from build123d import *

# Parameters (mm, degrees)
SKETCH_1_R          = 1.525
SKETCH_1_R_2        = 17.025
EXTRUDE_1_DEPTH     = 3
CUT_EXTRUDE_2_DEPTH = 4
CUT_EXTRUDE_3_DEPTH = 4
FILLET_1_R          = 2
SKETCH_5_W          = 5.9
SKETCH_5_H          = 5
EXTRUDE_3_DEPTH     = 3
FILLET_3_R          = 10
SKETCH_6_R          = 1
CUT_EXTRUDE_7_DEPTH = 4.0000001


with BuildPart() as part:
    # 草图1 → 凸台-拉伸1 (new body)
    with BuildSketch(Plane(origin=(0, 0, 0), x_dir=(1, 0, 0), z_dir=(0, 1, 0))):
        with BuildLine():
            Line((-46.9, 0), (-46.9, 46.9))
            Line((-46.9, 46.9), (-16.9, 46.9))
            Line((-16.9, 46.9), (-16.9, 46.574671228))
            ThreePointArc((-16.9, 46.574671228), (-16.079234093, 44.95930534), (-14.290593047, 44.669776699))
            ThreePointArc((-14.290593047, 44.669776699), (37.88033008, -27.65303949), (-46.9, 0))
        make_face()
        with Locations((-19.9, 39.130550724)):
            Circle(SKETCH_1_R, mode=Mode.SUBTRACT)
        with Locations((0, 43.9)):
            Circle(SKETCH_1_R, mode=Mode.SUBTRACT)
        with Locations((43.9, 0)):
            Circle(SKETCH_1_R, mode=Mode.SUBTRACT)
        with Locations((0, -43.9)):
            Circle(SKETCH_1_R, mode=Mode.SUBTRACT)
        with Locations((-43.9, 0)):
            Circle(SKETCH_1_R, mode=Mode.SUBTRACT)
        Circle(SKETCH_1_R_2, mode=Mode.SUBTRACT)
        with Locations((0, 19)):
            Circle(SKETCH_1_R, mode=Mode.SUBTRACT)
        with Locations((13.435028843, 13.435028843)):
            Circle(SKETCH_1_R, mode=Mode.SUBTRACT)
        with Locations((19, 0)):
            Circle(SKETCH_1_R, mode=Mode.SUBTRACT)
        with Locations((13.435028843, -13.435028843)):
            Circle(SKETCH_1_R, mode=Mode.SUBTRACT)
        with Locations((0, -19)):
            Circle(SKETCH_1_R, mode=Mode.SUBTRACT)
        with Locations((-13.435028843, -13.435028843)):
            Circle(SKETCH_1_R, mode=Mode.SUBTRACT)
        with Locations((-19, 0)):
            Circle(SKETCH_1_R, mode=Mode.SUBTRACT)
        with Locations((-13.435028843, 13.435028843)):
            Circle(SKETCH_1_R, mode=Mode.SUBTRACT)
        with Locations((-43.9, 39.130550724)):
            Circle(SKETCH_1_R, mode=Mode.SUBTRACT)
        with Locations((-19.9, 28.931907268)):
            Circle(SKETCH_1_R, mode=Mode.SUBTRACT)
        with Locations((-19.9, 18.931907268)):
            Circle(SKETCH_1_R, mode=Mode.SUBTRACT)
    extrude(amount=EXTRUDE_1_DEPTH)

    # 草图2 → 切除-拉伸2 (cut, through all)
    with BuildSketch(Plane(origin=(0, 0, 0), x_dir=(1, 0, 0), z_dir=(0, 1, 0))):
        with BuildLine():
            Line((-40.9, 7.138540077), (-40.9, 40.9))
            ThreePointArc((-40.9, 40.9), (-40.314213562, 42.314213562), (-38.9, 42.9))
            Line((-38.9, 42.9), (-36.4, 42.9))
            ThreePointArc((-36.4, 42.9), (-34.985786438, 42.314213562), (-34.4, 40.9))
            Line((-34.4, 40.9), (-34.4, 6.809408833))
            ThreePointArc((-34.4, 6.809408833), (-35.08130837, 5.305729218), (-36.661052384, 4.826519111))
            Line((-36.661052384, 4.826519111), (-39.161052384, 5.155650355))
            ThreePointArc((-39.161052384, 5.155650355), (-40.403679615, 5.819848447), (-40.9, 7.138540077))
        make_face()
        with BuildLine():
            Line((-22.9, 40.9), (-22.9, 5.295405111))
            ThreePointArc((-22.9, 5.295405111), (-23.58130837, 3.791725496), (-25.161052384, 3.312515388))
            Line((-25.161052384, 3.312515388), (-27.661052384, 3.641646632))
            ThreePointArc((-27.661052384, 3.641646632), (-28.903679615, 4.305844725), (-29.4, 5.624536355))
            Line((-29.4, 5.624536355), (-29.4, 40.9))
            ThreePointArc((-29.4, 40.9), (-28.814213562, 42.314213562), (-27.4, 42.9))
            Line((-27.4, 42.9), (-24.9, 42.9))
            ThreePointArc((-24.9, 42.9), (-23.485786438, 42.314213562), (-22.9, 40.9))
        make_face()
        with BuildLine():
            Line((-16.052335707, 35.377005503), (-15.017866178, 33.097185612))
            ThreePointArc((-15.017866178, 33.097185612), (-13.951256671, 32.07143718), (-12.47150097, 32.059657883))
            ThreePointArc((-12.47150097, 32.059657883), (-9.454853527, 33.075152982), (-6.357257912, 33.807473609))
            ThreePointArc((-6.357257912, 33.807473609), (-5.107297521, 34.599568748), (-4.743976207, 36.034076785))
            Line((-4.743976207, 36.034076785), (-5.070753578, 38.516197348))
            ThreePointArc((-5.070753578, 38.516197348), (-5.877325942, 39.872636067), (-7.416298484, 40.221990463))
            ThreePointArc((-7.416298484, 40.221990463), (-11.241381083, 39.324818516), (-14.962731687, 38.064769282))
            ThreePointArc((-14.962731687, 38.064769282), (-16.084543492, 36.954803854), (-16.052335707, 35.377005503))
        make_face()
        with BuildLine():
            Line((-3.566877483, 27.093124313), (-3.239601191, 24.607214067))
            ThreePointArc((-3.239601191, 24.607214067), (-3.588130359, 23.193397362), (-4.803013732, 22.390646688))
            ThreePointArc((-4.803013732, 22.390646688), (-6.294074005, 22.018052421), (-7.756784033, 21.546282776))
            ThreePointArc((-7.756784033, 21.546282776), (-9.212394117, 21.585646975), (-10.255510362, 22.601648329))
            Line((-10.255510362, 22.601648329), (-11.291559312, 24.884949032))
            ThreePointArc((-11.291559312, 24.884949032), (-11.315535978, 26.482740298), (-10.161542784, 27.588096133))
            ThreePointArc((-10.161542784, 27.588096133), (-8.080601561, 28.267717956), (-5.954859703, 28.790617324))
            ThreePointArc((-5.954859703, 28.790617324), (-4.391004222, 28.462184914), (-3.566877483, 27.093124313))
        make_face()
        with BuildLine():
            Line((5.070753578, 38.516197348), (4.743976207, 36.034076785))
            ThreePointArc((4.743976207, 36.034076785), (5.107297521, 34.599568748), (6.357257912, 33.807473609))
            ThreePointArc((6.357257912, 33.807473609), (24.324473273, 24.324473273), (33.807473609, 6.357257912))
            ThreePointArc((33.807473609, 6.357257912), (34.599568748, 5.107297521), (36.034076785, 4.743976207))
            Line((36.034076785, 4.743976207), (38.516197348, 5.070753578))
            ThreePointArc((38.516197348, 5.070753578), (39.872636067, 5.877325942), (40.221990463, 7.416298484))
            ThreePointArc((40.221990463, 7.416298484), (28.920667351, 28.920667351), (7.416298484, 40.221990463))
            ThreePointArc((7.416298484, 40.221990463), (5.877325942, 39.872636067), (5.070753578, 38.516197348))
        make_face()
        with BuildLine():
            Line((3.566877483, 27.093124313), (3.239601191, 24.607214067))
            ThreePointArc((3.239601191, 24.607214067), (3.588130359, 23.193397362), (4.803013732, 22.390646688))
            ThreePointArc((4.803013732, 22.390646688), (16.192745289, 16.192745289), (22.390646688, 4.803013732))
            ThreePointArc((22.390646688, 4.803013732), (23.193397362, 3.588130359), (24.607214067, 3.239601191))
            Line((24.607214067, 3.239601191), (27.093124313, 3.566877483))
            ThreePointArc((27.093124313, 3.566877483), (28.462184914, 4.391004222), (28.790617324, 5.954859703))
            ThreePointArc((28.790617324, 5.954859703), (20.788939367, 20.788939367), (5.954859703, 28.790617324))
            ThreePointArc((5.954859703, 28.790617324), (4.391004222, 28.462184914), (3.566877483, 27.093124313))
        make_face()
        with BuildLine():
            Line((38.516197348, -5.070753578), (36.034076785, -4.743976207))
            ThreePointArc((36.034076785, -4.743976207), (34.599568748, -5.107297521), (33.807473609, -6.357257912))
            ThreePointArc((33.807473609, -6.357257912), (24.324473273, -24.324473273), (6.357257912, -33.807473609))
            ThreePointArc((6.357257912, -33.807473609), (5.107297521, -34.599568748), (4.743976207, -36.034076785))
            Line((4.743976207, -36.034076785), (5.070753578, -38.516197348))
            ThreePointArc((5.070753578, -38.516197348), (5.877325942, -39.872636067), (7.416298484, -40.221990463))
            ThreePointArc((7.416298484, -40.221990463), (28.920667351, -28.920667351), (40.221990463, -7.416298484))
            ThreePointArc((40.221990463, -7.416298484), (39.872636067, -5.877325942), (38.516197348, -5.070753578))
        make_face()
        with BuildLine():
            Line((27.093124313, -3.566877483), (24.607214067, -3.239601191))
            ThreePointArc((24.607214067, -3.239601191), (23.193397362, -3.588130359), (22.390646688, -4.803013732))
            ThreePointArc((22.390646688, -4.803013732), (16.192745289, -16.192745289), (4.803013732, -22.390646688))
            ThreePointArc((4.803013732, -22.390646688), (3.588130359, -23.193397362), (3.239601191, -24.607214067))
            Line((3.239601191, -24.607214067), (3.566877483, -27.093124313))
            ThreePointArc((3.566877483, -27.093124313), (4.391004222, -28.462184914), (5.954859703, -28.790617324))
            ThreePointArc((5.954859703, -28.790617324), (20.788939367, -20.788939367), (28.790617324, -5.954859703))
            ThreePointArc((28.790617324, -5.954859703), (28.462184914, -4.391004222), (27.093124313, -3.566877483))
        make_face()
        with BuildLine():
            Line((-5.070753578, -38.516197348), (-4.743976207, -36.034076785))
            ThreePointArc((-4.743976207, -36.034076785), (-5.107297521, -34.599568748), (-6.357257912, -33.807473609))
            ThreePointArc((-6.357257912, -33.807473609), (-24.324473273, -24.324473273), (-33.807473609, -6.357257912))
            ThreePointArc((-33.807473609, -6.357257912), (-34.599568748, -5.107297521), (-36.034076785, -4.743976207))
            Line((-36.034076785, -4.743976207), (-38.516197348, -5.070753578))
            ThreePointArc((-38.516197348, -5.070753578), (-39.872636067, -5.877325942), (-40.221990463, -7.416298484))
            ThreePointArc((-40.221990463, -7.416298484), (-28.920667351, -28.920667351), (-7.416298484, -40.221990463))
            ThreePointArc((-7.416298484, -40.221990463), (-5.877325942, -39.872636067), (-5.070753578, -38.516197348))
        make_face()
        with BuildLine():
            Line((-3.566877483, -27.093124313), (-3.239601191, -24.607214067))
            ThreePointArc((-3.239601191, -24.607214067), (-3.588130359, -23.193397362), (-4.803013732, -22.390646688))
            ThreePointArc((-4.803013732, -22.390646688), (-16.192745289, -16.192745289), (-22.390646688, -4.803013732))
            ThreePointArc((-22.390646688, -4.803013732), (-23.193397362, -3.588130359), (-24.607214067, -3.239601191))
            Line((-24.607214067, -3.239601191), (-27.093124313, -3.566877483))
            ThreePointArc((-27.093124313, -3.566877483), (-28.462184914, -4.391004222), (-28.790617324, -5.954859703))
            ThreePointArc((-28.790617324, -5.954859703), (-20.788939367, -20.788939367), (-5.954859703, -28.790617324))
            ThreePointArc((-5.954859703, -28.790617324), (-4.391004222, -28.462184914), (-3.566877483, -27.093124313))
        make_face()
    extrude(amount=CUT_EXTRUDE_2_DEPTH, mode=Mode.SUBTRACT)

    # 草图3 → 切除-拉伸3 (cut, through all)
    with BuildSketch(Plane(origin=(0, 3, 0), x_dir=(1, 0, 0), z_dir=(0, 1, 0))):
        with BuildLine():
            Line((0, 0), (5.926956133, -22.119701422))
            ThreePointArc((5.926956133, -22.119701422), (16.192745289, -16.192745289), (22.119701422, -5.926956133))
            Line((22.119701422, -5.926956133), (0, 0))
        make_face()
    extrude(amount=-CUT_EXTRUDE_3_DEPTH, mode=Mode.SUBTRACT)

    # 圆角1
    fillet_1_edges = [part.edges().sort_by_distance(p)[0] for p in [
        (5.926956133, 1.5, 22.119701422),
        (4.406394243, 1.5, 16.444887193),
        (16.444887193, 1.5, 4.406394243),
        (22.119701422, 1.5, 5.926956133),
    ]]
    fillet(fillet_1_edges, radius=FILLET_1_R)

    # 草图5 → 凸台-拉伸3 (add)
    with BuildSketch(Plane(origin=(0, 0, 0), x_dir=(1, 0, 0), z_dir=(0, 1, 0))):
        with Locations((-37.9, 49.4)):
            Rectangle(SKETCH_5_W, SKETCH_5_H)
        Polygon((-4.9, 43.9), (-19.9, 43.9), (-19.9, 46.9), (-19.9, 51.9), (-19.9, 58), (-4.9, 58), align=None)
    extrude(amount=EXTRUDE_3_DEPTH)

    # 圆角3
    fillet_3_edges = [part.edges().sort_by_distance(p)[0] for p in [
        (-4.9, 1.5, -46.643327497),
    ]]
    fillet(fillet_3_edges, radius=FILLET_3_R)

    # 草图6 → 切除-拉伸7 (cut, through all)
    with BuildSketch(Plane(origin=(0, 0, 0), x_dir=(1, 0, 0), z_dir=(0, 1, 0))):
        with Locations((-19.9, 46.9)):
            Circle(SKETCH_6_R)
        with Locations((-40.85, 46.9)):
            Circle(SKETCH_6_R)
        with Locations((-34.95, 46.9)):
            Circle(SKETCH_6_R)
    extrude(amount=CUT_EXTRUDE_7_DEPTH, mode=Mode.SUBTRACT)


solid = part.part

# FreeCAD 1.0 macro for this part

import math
import FreeCAD as App
import Part
import Sketcher
Q = App.Units.Quantity


def edges_at(feature, points):
    """Names of the edges that pass closest to the given points."""
    edges = feature.Shape.Edges
    near = lambda p: min(range(len(edges)), key=lambda i: edges[i].distToShape(Part.Vertex(*p))[0])
    return sorted({f"Edge{near(p) + 1}" for p in points})


def add_polygon(sketch, points):
    """Adds a closed chain of lines whose ends are joined by coincident constraints."""
    first, n = sketch.GeometryCount, len(points)
    for a, b in zip(points, points[1:] + points[:1]):
        sketch.addGeometry(Part.LineSegment(App.Vector(*a, 0), App.Vector(*b, 0)), False)
    for i in range(n):
        sketch.addConstraint(Sketcher.Constraint("Coincident", first + i, 2, first + (i + 1) % n, 1))

doc = App.newDocument("Part")
body = doc.addObject("PartDesign::Body", "Body")

# Sketch on XZ plane
sketch1 = doc.addObject("Sketcher::SketchObject", "Sketch")
body.addObject(sketch1)
sketch1.AttachmentSupport = (doc.XZ_Plane, [""])
sketch1.MapMode = "FlatFace"
sketch1.addGeometry(Part.LineSegment(App.Vector(-46.9, -46.9, 0), App.Vector(-46.9, 0, 0)), False)
sketch1.addGeometry(Part.ArcOfCircle(Part.Circle(App.Vector(0, 0, 0), App.Vector(0, 0, 1), 46.9), math.radians(-108), math.radians(180)), False)
sketch1.addGeometry(Part.ArcOfCircle(Part.Circle(App.Vector(-14.9, -46.57, 0), App.Vector(0, 0, 1), 2), math.radians(72), math.radians(180)), False)
sketch1.addGeometry(Part.LineSegment(App.Vector(-16.9, -46.57, 0), App.Vector(-16.9, -46.9, 0)), False)
sketch1.addGeometry(Part.LineSegment(App.Vector(-16.9, -46.9, 0), App.Vector(-46.9, -46.9, 0)), False)
sketch1.addGeometry(Part.Circle(App.Vector(13.44, 13.44, 0), App.Vector(0, 0, 1), 1.52), False)
sketch1.addGeometry(Part.Circle(App.Vector(0, 43.9, 0), App.Vector(0, 0, 1), 1.52), False)
sketch1.addGeometry(Part.Circle(App.Vector(0, 19, 0), App.Vector(0, 0, 1), 1.52), False)
sketch1.addGeometry(Part.Circle(App.Vector(-13.44, 13.44, 0), App.Vector(0, 0, 1), 1.52), False)
sketch1.addGeometry(Part.Circle(App.Vector(43.9, 0, 0), App.Vector(0, 0, 1), 1.52), False)
sketch1.addGeometry(Part.Circle(App.Vector(19, 0, 0), App.Vector(0, 0, 1), 1.52), False)
sketch1.addGeometry(Part.Circle(App.Vector(13.44, -13.44, 0), App.Vector(0, 0, 1), 1.52), False)
sketch1.addGeometry(Part.Circle(App.Vector(0, 0, 0), App.Vector(0, 0, 1), 17.02), False)
sketch1.addGeometry(Part.Circle(App.Vector(-19, 0, 0), App.Vector(0, 0, 1), 1.52), False)
sketch1.addGeometry(Part.Circle(App.Vector(0, -19, 0), App.Vector(0, 0, 1), 1.52), False)
sketch1.addGeometry(Part.Circle(App.Vector(-13.44, -13.44, 0), App.Vector(0, 0, 1), 1.52), False)
sketch1.addGeometry(Part.Circle(App.Vector(-19.9, -18.93, 0), App.Vector(0, 0, 1), 1.52), False)
sketch1.addGeometry(Part.Circle(App.Vector(-43.9, 0, 0), App.Vector(0, 0, 1), 1.52), False)
sketch1.addGeometry(Part.Circle(App.Vector(-19.9, -28.93, 0), App.Vector(0, 0, 1), 1.52), False)
sketch1.addGeometry(Part.Circle(App.Vector(0, -43.9, 0), App.Vector(0, 0, 1), 1.52), False)
sketch1.addGeometry(Part.Circle(App.Vector(-19.9, -39.13, 0), App.Vector(0, 0, 1), 1.52), False)
sketch1.addGeometry(Part.Circle(App.Vector(-43.9, -39.13, 0), App.Vector(0, 0, 1), 1.52), False)
sketch1.addConstraint(Sketcher.Constraint("Tangent", 0, 2, 1, 2))
sketch1.addConstraint(Sketcher.Constraint("Tangent", 1, 1, 2, 1))
sketch1.addConstraint(Sketcher.Constraint("Tangent", 2, 2, 3, 1))
sketch1.addConstraint(Sketcher.Constraint("Coincident", 3, 2, 4, 1))
sketch1.addConstraint(Sketcher.Constraint("Coincident", 4, 2, 0, 1))
sketch1.addConstraint(Sketcher.Constraint("Vertical", 0))
sketch1.addConstraint(Sketcher.Constraint("Vertical", 3))
sketch1.addConstraint(Sketcher.Constraint("Horizontal", 4))
sketch1.addConstraint(Sketcher.Constraint("Coincident", 1, 3, -1, 1))
sketch1.addConstraint(Sketcher.Constraint("Coincident", 12, 3, -1, 1))
sketch1.addConstraint(Sketcher.Constraint("Equal", 5, 6))
sketch1.addConstraint(Sketcher.Constraint("Equal", 6, 7))
sketch1.addConstraint(Sketcher.Constraint("Equal", 7, 8))
sketch1.addConstraint(Sketcher.Constraint("Equal", 8, 9))
sketch1.addConstraint(Sketcher.Constraint("Equal", 9, 10))
sketch1.addConstraint(Sketcher.Constraint("Equal", 10, 11))
sketch1.addConstraint(Sketcher.Constraint("Equal", 11, 13))
sketch1.addConstraint(Sketcher.Constraint("Equal", 13, 14))
sketch1.addConstraint(Sketcher.Constraint("Equal", 14, 15))
sketch1.addConstraint(Sketcher.Constraint("Equal", 15, 16))
sketch1.addConstraint(Sketcher.Constraint("Equal", 16, 17))
sketch1.addConstraint(Sketcher.Constraint("Equal", 17, 18))
sketch1.addConstraint(Sketcher.Constraint("Equal", 18, 19))
sketch1.addConstraint(Sketcher.Constraint("Equal", 19, 20))
sketch1.addConstraint(Sketcher.Constraint("Equal", 20, 21))
sketch1.addConstraint(Sketcher.Constraint("Symmetric", 8, 3, 11, 3, -1, 1))
sketch1.addConstraint(Sketcher.Constraint("Symmetric", 10, 3, 13, 3, -1, 1))
sketch1.addConstraint(Sketcher.Constraint("Symmetric", 7, 3, 14, 3, -1, 1))
sketch1.addConstraint(Sketcher.Constraint("Symmetric", 5, 3, 15, 3, -1, 1))
sketch1.addConstraint(Sketcher.Constraint("Symmetric", 9, 3, 17, 3, -1, 1))
sketch1.addConstraint(Sketcher.Constraint("Symmetric", 6, 3, 19, 3, -1, 1))
sketch1.addConstraint(Sketcher.Constraint("Symmetric", 5, 3, 8, 3, -2))
sketch1.addConstraint(Sketcher.Constraint("PointOnObject", 6, 3, -2))
sketch1.addConstraint(Sketcher.Constraint("PointOnObject", 7, 3, -2))
sketch1.addConstraint(Sketcher.Constraint("PointOnObject", 9, 3, -1))
sketch1.addConstraint(Sketcher.Constraint("PointOnObject", 10, 3, -1))
sketch1.addConstraint(Sketcher.Constraint("Horizontal", 20, 3, 21, 3))
sketch1.addConstraint(Sketcher.Constraint("Vertical", 16, 3, 18, 3))
sketch1.addConstraint(Sketcher.Constraint("Vertical", 18, 3, 20, 3))
sketch1.addConstraint(Sketcher.Constraint("Vertical", 17, 3, 21, 3))
sketch1.addConstraint(Sketcher.Constraint("Radius", 2, Q("2 mm")))
sketch1.addConstraint(Sketcher.Constraint("Radius", 1, Q("46.9 mm")))
sketch1.addConstraint(Sketcher.Constraint("Diameter", 5, Q("3.05 mm")))
sketch1.addConstraint(Sketcher.Constraint("Diameter", 12, Q("34.05 mm")))
sketch1.addConstraint(Sketcher.Constraint("DistanceX", 4, 2, 4, 1, Q("30 mm")))
sketch1.addConstraint(Sketcher.Constraint("DistanceY", 0, 1, 0, 2, Q("46.9 mm")))
sketch1.addConstraint(Sketcher.Constraint("DistanceY", -1, 1, 7, 3, Q("19 mm")))
sketch1.addConstraint(Sketcher.Constraint("DistanceX", -1, 1, 10, 3, Q("19 mm")))
sketch1.addConstraint(Sketcher.Constraint("DistanceX", 17, 3, 16, 3, Q("24 mm")))
sketch1.addConstraint(Sketcher.Constraint("DistanceY", 18, 3, 16, 3, Q("10 mm")))
sketch1.addConstraint(Sketcher.Constraint("DistanceX", 18, 3, 2, 3, Q("5 mm")))
sketch1.addConstraint(Sketcher.Constraint("DistanceY", 3, 2, 19, 3, Q("3 mm")))
sketch1.addConstraint(Sketcher.Constraint("DistanceY", 2, 3, 5, 3, Q("60.0097 mm")))
sketch1.addConstraint(Sketcher.Constraint("DistanceX", -1, 1, 5, 3, Q("13.435029 mm")))
sketch1.addConstraint(Sketcher.Constraint("DistanceY", 20, 3, -1, 1, Q("39.130551 mm")))
sketch1.addConstraint(Sketcher.Constraint("DistanceY", 16, 3, 15, 3, Q("5.496878 mm")))
pad1 = doc.addObject("PartDesign::Pad", "Pad")
body.addObject(pad1)
pad1.Profile = sketch1
pad1.Length = 3
pad1.Reversed = True

# Sketch on XZ plane
sketch2 = doc.addObject("Sketcher::SketchObject", "Sketch001")
body.addObject(sketch2)
sketch2.AttachmentSupport = (doc.XZ_Plane, [""])
sketch2.MapMode = "FlatFace"
sketch2.addGeometry(Part.LineSegment(App.Vector(-40.9, -40.9, 0), App.Vector(-40.9, -7.1, 0)), False)
sketch2.addGeometry(Part.ArcOfCircle(Part.Circle(App.Vector(-38.9, -7.1, 0), App.Vector(0, 0, 1), 2), math.radians(97), math.radians(180)), False)
sketch2.addGeometry(Part.LineSegment(App.Vector(-39.2, -5.2, 0), App.Vector(-36.7, -4.8, 0)), False)
sketch2.addGeometry(Part.ArcOfCircle(Part.Circle(App.Vector(-36.4, -6.8, 0), App.Vector(0, 0, 1), 2), math.radians(0), math.radians(98)), False)
sketch2.addGeometry(Part.LineSegment(App.Vector(-34.4, -6.8, 0), App.Vector(-34.4, -40.9, 0)), False)
sketch2.addGeometry(Part.ArcOfCircle(Part.Circle(App.Vector(-36.4, -40.9, 0), App.Vector(0, 0, 1), 2), math.radians(-90), math.radians(0)), False)
sketch2.addGeometry(Part.LineSegment(App.Vector(-36.4, -42.9, 0), App.Vector(-38.9, -42.9, 0)), False)
sketch2.addGeometry(Part.ArcOfCircle(Part.Circle(App.Vector(-38.9, -40.9, 0), App.Vector(0, 0, 1), 2), math.radians(-180), math.radians(-90)), False)
sketch2.addGeometry(Part.LineSegment(App.Vector(-22.9, -5.3, 0), App.Vector(-22.9, -40.9, 0)), False)
sketch2.addGeometry(Part.ArcOfCircle(Part.Circle(App.Vector(-24.9, -40.9, 0), App.Vector(0, 0, 1), 2), math.radians(-90), math.radians(0)), False)
sketch2.addGeometry(Part.LineSegment(App.Vector(-24.9, -42.9, 0), App.Vector(-27.4, -42.9, 0)), False)
sketch2.addGeometry(Part.ArcOfCircle(Part.Circle(App.Vector(-27.4, -40.9, 0), App.Vector(0, 0, 1), 2), math.radians(-180), math.radians(-90)), False)
sketch2.addGeometry(Part.LineSegment(App.Vector(-29.4, -40.9, 0), App.Vector(-29.4, -5.6, 0)), False)
sketch2.addGeometry(Part.ArcOfCircle(Part.Circle(App.Vector(-27.4, -5.6, 0), App.Vector(0, 0, 1), 2), math.radians(98), math.radians(180)), False)
sketch2.addGeometry(Part.LineSegment(App.Vector(-27.7, -3.6, 0), App.Vector(-25.2, -3.3, 0)), False)
sketch2.addGeometry(Part.ArcOfCircle(Part.Circle(App.Vector(-24.9, -5.3, 0), App.Vector(0, 0, 1), 2), math.radians(0), math.radians(97)), False)
sketch2.addGeometry(Part.LineSegment(App.Vector(-16.1, -35.4, 0), App.Vector(-15, -33.1, 0)), False)
sketch2.addGeometry(Part.ArcOfCircle(Part.Circle(App.Vector(-13.2, -33.9, 0), App.Vector(0, 0, 1), 2), math.radians(69), math.radians(156)), False)
sketch2.addGeometry(Part.ArcOfCircle(Part.Circle(App.Vector(0, 0, 0), App.Vector(0, 0, 1), 34.4), math.radians(-111.26), math.radians(-100.65)), False)
sketch2.addGeometry(Part.ArcOfCircle(Part.Circle(App.Vector(-6.7, -35.8, 0), App.Vector(0, 0, 1), 2), math.radians(-7), math.radians(79)), False)
sketch2.addGeometry(Part.LineSegment(App.Vector(-4.7, -36, 0), App.Vector(-5.1, -38.5, 0)), False)
sketch2.addGeometry(Part.ArcOfCircle(Part.Circle(App.Vector(-7.1, -38.3, 0), App.Vector(0, 0, 1), 2), math.radians(-100), math.radians(-8)), False)
sketch2.addGeometry(Part.ArcOfCircle(Part.Circle(App.Vector(0, 0, 0), App.Vector(0, 0, 1), 40.9), math.radians(-111.46), math.radians(-100.45)), False)
sketch2.addGeometry(Part.ArcOfCircle(Part.Circle(App.Vector(-14.2, -36.2, 0), App.Vector(0, 0, 1), 2), math.radians(156), math.radians(249)), False)
sketch2.addGeometry(Part.LineSegment(App.Vector(-3.2, -24.6, 0), App.Vector(-3.6, -27.1, 0)), False)
sketch2.addGeometry(Part.ArcOfCircle(Part.Circle(App.Vector(-5.5, -26.8, 0), App.Vector(0, 0, 1), 2), math.radians(-102), math.radians(-8)), False)
sketch2.addGeometry(Part.ArcOfCircle(Part.Circle(App.Vector(0, 0, 0), App.Vector(0, 0, 1), 29.4), math.radians(-110.22), math.radians(-101.69)), False)
sketch2.addGeometry(Part.ArcOfCircle(Part.Circle(App.Vector(-9.5, -25.7, 0), App.Vector(0, 0, 1), 2), math.radians(156), math.radians(250)), False)
sketch2.addGeometry(Part.LineSegment(App.Vector(-11.3, -24.9, 0), App.Vector(-10.3, -22.6, 0)), False)
sketch2.addGeometry(Part.ArcOfCircle(Part.Circle(App.Vector(-8.4, -23.4, 0), App.Vector(0, 0, 1), 2), math.radians(70), math.radians(156)), False)
sketch2.addGeometry(Part.ArcOfCircle(Part.Circle(App.Vector(0, 0, 0), App.Vector(0, 0, 1), 22.9), math.radians(-109.8), math.radians(-102.11)), False)
sketch2.addGeometry(Part.ArcOfCircle(Part.Circle(App.Vector(-5.2, -24.3, 0), App.Vector(0, 0, 1), 2), math.radians(-8), math.radians(78)), False)
sketch2.addGeometry(Part.LineSegment(App.Vector(5.1, -38.5, 0), App.Vector(4.7, -36, 0)), False)
sketch2.addGeometry(Part.ArcOfCircle(Part.Circle(App.Vector(6.7, -35.8, 0), App.Vector(0, 0, 1), 2), math.radians(101), math.radians(187)), False)
sketch2.addGeometry(Part.ArcOfCircle(Part.Circle(App.Vector(0, 0, 0), App.Vector(0, 0, 1), 34.4), math.radians(-79), math.radians(-11)), False)
sketch2.addGeometry(Part.ArcOfCircle(Part.Circle(App.Vector(35.8, -6.7, 0), App.Vector(0, 0, 1), 2), math.radians(83), math.radians(169)), False)
sketch2.addGeometry(Part.LineSegment(App.Vector(36, -4.7, 0), App.Vector(38.5, -5.1, 0)), False)
sketch2.addGeometry(Part.ArcOfCircle(Part.Circle(App.Vector(38.3, -7.1, 0), App.Vector(0, 0, 1), 2), math.radians(-10), math.radians(82)), False)
sketch2.addGeometry(Part.ArcOfCircle(Part.Circle(App.Vector(0, 0, 0), App.Vector(0, 0, 1), 40.9), math.radians(-80), math.radians(-10)), False)
sketch2.addGeometry(Part.ArcOfCircle(Part.Circle(App.Vector(7.1, -38.3, 0), App.Vector(0, 0, 1), 2), math.radians(-172), math.radians(-80)), False)
sketch2.addGeometry(Part.LineSegment(App.Vector(3.6, -27.1, 0), App.Vector(3.2, -24.6, 0)), False)
sketch2.addGeometry(Part.ArcOfCircle(Part.Circle(App.Vector(5.2, -24.3, 0), App.Vector(0, 0, 1), 2), math.radians(102), math.radians(188)), False)
sketch2.addGeometry(Part.ArcOfCircle(Part.Circle(App.Vector(0, 0, 0), App.Vector(0, 0, 1), 22.9), math.radians(-78), math.radians(-12)), False)
sketch2.addGeometry(Part.ArcOfCircle(Part.Circle(App.Vector(24.3, -5.2, 0), App.Vector(0, 0, 1), 2), math.radians(82), math.radians(168)), False)
sketch2.addGeometry(Part.LineSegment(App.Vector(24.6, -3.2, 0), App.Vector(27.1, -3.6, 0)), False)
sketch2.addGeometry(Part.ArcOfCircle(Part.Circle(App.Vector(26.8, -5.5, 0), App.Vector(0, 0, 1), 2), math.radians(-12), math.radians(82)), False)
sketch2.addGeometry(Part.ArcOfCircle(Part.Circle(App.Vector(0, 0, 0), App.Vector(0, 0, 1), 29.4), math.radians(-78), math.radians(-12)), False)
sketch2.addGeometry(Part.ArcOfCircle(Part.Circle(App.Vector(5.5, -26.8, 0), App.Vector(0, 0, 1), 2), math.radians(-172), math.radians(-78)), False)
sketch2.addGeometry(Part.LineSegment(App.Vector(38.5, 5.1, 0), App.Vector(36, 4.7, 0)), False)
sketch2.addGeometry(Part.ArcOfCircle(Part.Circle(App.Vector(35.8, 6.7, 0), App.Vector(0, 0, 1), 2), math.radians(-169), math.radians(-83)), False)
sketch2.addGeometry(Part.ArcOfCircle(Part.Circle(App.Vector(0, 0, 0), App.Vector(0, 0, 1), 34.4), math.radians(11), math.radians(79)), False)
sketch2.addGeometry(Part.ArcOfCircle(Part.Circle(App.Vector(6.7, 35.8, 0), App.Vector(0, 0, 1), 2), math.radians(173), math.radians(259)), False)
sketch2.addGeometry(Part.LineSegment(App.Vector(4.7, 36, 0), App.Vector(5.1, 38.5, 0)), False)
sketch2.addGeometry(Part.ArcOfCircle(Part.Circle(App.Vector(7.1, 38.3, 0), App.Vector(0, 0, 1), 2), math.radians(80), math.radians(172)), False)
sketch2.addGeometry(Part.ArcOfCircle(Part.Circle(App.Vector(0, 0, 0), App.Vector(0, 0, 1), 40.9), math.radians(10), math.radians(80)), False)
sketch2.addGeometry(Part.ArcOfCircle(Part.Circle(App.Vector(38.3, 7.1, 0), App.Vector(0, 0, 1), 2), math.radians(-82), math.radians(10)), False)
sketch2.addGeometry(Part.LineSegment(App.Vector(27.1, 3.6, 0), App.Vector(24.6, 3.2, 0)), False)
sketch2.addGeometry(Part.ArcOfCircle(Part.Circle(App.Vector(24.3, 5.2, 0), App.Vector(0, 0, 1), 2), math.radians(-168), math.radians(-82)), False)
sketch2.addGeometry(Part.ArcOfCircle(Part.Circle(App.Vector(0, 0, 0), App.Vector(0, 0, 1), 22.9), math.radians(12), math.radians(78)), False)
sketch2.addGeometry(Part.ArcOfCircle(Part.Circle(App.Vector(5.2, 24.3, 0), App.Vector(0, 0, 1), 2), math.radians(172), math.radians(258)), False)
sketch2.addGeometry(Part.LineSegment(App.Vector(3.2, 24.6, 0), App.Vector(3.6, 27.1, 0)), False)
sketch2.addGeometry(Part.ArcOfCircle(Part.Circle(App.Vector(5.5, 26.8, 0), App.Vector(0, 0, 1), 2), math.radians(78), math.radians(172)), False)
sketch2.addGeometry(Part.ArcOfCircle(Part.Circle(App.Vector(0, 0, 0), App.Vector(0, 0, 1), 29.4), math.radians(12), math.radians(78)), False)
sketch2.addGeometry(Part.ArcOfCircle(Part.Circle(App.Vector(26.8, 5.5, 0), App.Vector(0, 0, 1), 2), math.radians(-82), math.radians(12)), False)
sketch2.addGeometry(Part.LineSegment(App.Vector(-5.1, 38.5, 0), App.Vector(-4.7, 36, 0)), False)
sketch2.addGeometry(Part.ArcOfCircle(Part.Circle(App.Vector(-6.7, 35.8, 0), App.Vector(0, 0, 1), 2), math.radians(-79), math.radians(7)), False)
sketch2.addGeometry(Part.ArcOfCircle(Part.Circle(App.Vector(0, 0, 0), App.Vector(0, 0, 1), 34.4), math.radians(101), math.radians(169)), False)
sketch2.addGeometry(Part.ArcOfCircle(Part.Circle(App.Vector(-35.8, 6.7, 0), App.Vector(0, 0, 1), 2), math.radians(-97), math.radians(-11)), False)
sketch2.addGeometry(Part.LineSegment(App.Vector(-36, 4.7, 0), App.Vector(-38.5, 5.1, 0)), False)
sketch2.addGeometry(Part.ArcOfCircle(Part.Circle(App.Vector(-38.3, 7.1, 0), App.Vector(0, 0, 1), 2), math.radians(170), math.radians(262)), False)
sketch2.addGeometry(Part.ArcOfCircle(Part.Circle(App.Vector(0, 0, 0), App.Vector(0, 0, 1), 40.9), math.radians(100), math.radians(170)), False)
sketch2.addGeometry(Part.ArcOfCircle(Part.Circle(App.Vector(-7.1, 38.3, 0), App.Vector(0, 0, 1), 2), math.radians(8), math.radians(100)), False)
sketch2.addGeometry(Part.LineSegment(App.Vector(-3.6, 27.1, 0), App.Vector(-3.2, 24.6, 0)), False)
sketch2.addGeometry(Part.ArcOfCircle(Part.Circle(App.Vector(-5.2, 24.3, 0), App.Vector(0, 0, 1), 2), math.radians(-78), math.radians(8)), False)
sketch2.addGeometry(Part.ArcOfCircle(Part.Circle(App.Vector(0, 0, 0), App.Vector(0, 0, 1), 22.9), math.radians(102), math.radians(168)), False)
sketch2.addGeometry(Part.ArcOfCircle(Part.Circle(App.Vector(-24.3, 5.2, 0), App.Vector(0, 0, 1), 2), math.radians(-98), math.radians(-12)), False)
sketch2.addGeometry(Part.LineSegment(App.Vector(-24.6, 3.2, 0), App.Vector(-27.1, 3.6, 0)), False)
sketch2.addGeometry(Part.ArcOfCircle(Part.Circle(App.Vector(-26.8, 5.5, 0), App.Vector(0, 0, 1), 2), math.radians(168), math.radians(262)), False)
sketch2.addGeometry(Part.ArcOfCircle(Part.Circle(App.Vector(0, 0, 0), App.Vector(0, 0, 1), 29.4), math.radians(102), math.radians(168)), False)
sketch2.addGeometry(Part.ArcOfCircle(Part.Circle(App.Vector(-5.5, 26.8, 0), App.Vector(0, 0, 1), 2), math.radians(8), math.radians(102)), False)
sketch2.addConstraint(Sketcher.Constraint("Tangent", 0, 2, 1, 2))
sketch2.addConstraint(Sketcher.Constraint("Tangent", 1, 1, 2, 1))
sketch2.addConstraint(Sketcher.Constraint("Tangent", 2, 2, 3, 2))
sketch2.addConstraint(Sketcher.Constraint("Tangent", 3, 1, 4, 1))
sketch2.addConstraint(Sketcher.Constraint("Tangent", 4, 2, 5, 2))
sketch2.addConstraint(Sketcher.Constraint("Tangent", 5, 1, 6, 1))
sketch2.addConstraint(Sketcher.Constraint("Tangent", 6, 2, 7, 2))
sketch2.addConstraint(Sketcher.Constraint("Tangent", 7, 1, 0, 1))
sketch2.addConstraint(Sketcher.Constraint("Tangent", 8, 2, 9, 2))
sketch2.addConstraint(Sketcher.Constraint("Tangent", 9, 1, 10, 1))
sketch2.addConstraint(Sketcher.Constraint("Tangent", 10, 2, 11, 2))
sketch2.addConstraint(Sketcher.Constraint("Tangent", 11, 1, 12, 1))
sketch2.addConstraint(Sketcher.Constraint("Tangent", 12, 2, 13, 2))
sketch2.addConstraint(Sketcher.Constraint("Tangent", 13, 1, 14, 1))
sketch2.addConstraint(Sketcher.Constraint("Tangent", 14, 2, 15, 2))
sketch2.addConstraint(Sketcher.Constraint("Tangent", 15, 1, 8, 1))
sketch2.addConstraint(Sketcher.Constraint("Tangent", 16, 2, 17, 2))
sketch2.addConstraint(Sketcher.Constraint("Tangent", 17, 1, 18, 1))
sketch2.addConstraint(Sketcher.Constraint("Tangent", 18, 2, 19, 2))
sketch2.addConstraint(Sketcher.Constraint("Tangent", 19, 1, 20, 1))
sketch2.addConstraint(Sketcher.Constraint("Tangent", 20, 2, 21, 2))
sketch2.addConstraint(Sketcher.Constraint("Tangent", 21, 1, 22, 2))
sketch2.addConstraint(Sketcher.Constraint("Tangent", 22, 1, 23, 2))
sketch2.addConstraint(Sketcher.Constraint("Tangent", 23, 1, 16, 1))
sketch2.addConstraint(Sketcher.Constraint("Tangent", 24, 2, 25, 2))
sketch2.addConstraint(Sketcher.Constraint("Tangent", 25, 1, 26, 2))
sketch2.addConstraint(Sketcher.Constraint("Tangent", 26, 1, 27, 2))
sketch2.addConstraint(Sketcher.Constraint("Tangent", 27, 1, 28, 1))
sketch2.addConstraint(Sketcher.Constraint("Tangent", 28, 2, 29, 2))
sketch2.addConstraint(Sketcher.Constraint("Tangent", 29, 1, 30, 1))
sketch2.addConstraint(Sketcher.Constraint("Tangent", 30, 2, 31, 2))
sketch2.addConstraint(Sketcher.Constraint("Tangent", 31, 1, 24, 1))
sketch2.addConstraint(Sketcher.Constraint("Tangent", 32, 2, 33, 2))
sketch2.addConstraint(Sketcher.Constraint("Tangent", 33, 1, 34, 1))
sketch2.addConstraint(Sketcher.Constraint("Tangent", 34, 2, 35, 2))
sketch2.addConstraint(Sketcher.Constraint("Tangent", 35, 1, 36, 1))
sketch2.addConstraint(Sketcher.Constraint("Tangent", 36, 2, 37, 2))
sketch2.addConstraint(Sketcher.Constraint("Tangent", 37, 1, 38, 2))
sketch2.addConstraint(Sketcher.Constraint("Tangent", 38, 1, 39, 2))
sketch2.addConstraint(Sketcher.Constraint("Tangent", 39, 1, 32, 1))
sketch2.addConstraint(Sketcher.Constraint("Tangent", 40, 2, 41, 2))
sketch2.addConstraint(Sketcher.Constraint("Tangent", 41, 1, 42, 1))
sketch2.addConstraint(Sketcher.Constraint("Tangent", 42, 2, 43, 2))
sketch2.addConstraint(Sketcher.Constraint("Tangent", 43, 1, 44, 1))
sketch2.addConstraint(Sketcher.Constraint("Tangent", 44, 2, 45, 2))
sketch2.addConstraint(Sketcher.Constraint("Tangent", 45, 1, 46, 2))
sketch2.addConstraint(Sketcher.Constraint("Tangent", 46, 1, 47, 2))
sketch2.addConstraint(Sketcher.Constraint("Tangent", 47, 1, 40, 1))
sketch2.addConstraint(Sketcher.Constraint("Tangent", 48, 2, 49, 2))
sketch2.addConstraint(Sketcher.Constraint("Tangent", 49, 1, 50, 1))
sketch2.addConstraint(Sketcher.Constraint("Tangent", 50, 2, 51, 2))
sketch2.addConstraint(Sketcher.Constraint("Tangent", 51, 1, 52, 1))
sketch2.addConstraint(Sketcher.Constraint("Tangent", 52, 2, 53, 2))
sketch2.addConstraint(Sketcher.Constraint("Tangent", 53, 1, 54, 2))
sketch2.addConstraint(Sketcher.Constraint("Tangent", 54, 1, 55, 2))
sketch2.addConstraint(Sketcher.Constraint("Tangent", 55, 1, 48, 1))
sketch2.addConstraint(Sketcher.Constraint("Tangent", 56, 2, 57, 2))
sketch2.addConstraint(Sketcher.Constraint("Tangent", 57, 1, 58, 1))
sketch2.addConstraint(Sketcher.Constraint("Tangent", 58, 2, 59, 2))
sketch2.addConstraint(Sketcher.Constraint("Tangent", 59, 1, 60, 1))
sketch2.addConstraint(Sketcher.Constraint("Tangent", 60, 2, 61, 2))
sketch2.addConstraint(Sketcher.Constraint("Tangent", 61, 1, 62, 2))
sketch2.addConstraint(Sketcher.Constraint("Tangent", 62, 1, 63, 2))
sketch2.addConstraint(Sketcher.Constraint("Tangent", 63, 1, 56, 1))
sketch2.addConstraint(Sketcher.Constraint("Tangent", 64, 2, 65, 2))
sketch2.addConstraint(Sketcher.Constraint("Tangent", 65, 1, 66, 1))
sketch2.addConstraint(Sketcher.Constraint("Tangent", 66, 2, 67, 2))
sketch2.addConstraint(Sketcher.Constraint("Tangent", 67, 1, 68, 1))
sketch2.addConstraint(Sketcher.Constraint("Tangent", 68, 2, 69, 2))
sketch2.addConstraint(Sketcher.Constraint("Tangent", 69, 1, 70, 2))
sketch2.addConstraint(Sketcher.Constraint("Tangent", 70, 1, 71, 2))
sketch2.addConstraint(Sketcher.Constraint("Tangent", 71, 1, 64, 1))
sketch2.addConstraint(Sketcher.Constraint("Tangent", 72, 2, 73, 2))
sketch2.addConstraint(Sketcher.Constraint("Tangent", 73, 1, 74, 1))
sketch2.addConstraint(Sketcher.Constraint("Tangent", 74, 2, 75, 2))
sketch2.addConstraint(Sketcher.Constraint("Tangent", 75, 1, 76, 1))
sketch2.addConstraint(Sketcher.Constraint("Tangent", 76, 2, 77, 2))
sketch2.addConstraint(Sketcher.Constraint("Tangent", 77, 1, 78, 2))
sketch2.addConstraint(Sketcher.Constraint("Tangent", 78, 1, 79, 2))
sketch2.addConstraint(Sketcher.Constraint("Tangent", 79, 1, 72, 1))
sketch2.addConstraint(Sketcher.Constraint("Vertical", 0))
sketch2.addConstraint(Sketcher.Constraint("Vertical", 4))
sketch2.addConstraint(Sketcher.Constraint("Horizontal", 6))
sketch2.addConstraint(Sketcher.Constraint("Vertical", 8))
sketch2.addConstraint(Sketcher.Constraint("Horizontal", 10))
sketch2.addConstraint(Sketcher.Constraint("Vertical", 12))
sketch2.addConstraint(Sketcher.Constraint("Coincident", 18, 3, -1, 1))
sketch2.addConstraint(Sketcher.Constraint("Coincident", 22, 3, -1, 1))
sketch2.addConstraint(Sketcher.Constraint("Coincident", 26, 3, -1, 1))
sketch2.addConstraint(Sketcher.Constraint("Coincident", 30, 3, -1, 1))
sketch2.addConstraint(Sketcher.Constraint("Coincident", 34, 3, -1, 1))
sketch2.addConstraint(Sketcher.Constraint("Coincident", 38, 3, -1, 1))
sketch2.addConstraint(Sketcher.Constraint("Coincident", 42, 3, -1, 1))
sketch2.addConstraint(Sketcher.Constraint("Coincident", 46, 3, -1, 1))
sketch2.addConstraint(Sketcher.Constraint("Coincident", 50, 3, -1, 1))
sketch2.addConstraint(Sketcher.Constraint("Coincident", 54, 3, -1, 1))
sketch2.addConstraint(Sketcher.Constraint("Coincident", 58, 3, -1, 1))
sketch2.addConstraint(Sketcher.Constraint("Coincident", 62, 3, -1, 1))
sketch2.addConstraint(Sketcher.Constraint("Coincident", 66, 3, -1, 1))
sketch2.addConstraint(Sketcher.Constraint("Coincident", 70, 3, -1, 1))
sketch2.addConstraint(Sketcher.Constraint("Coincident", 74, 3, -1, 1))
sketch2.addConstraint(Sketcher.Constraint("Coincident", 78, 3, -1, 1))
sketch2.addConstraint(Sketcher.Constraint("Equal", 1, 3))
sketch2.addConstraint(Sketcher.Constraint("Equal", 3, 5))
sketch2.addConstraint(Sketcher.Constraint("Equal", 5, 7))
sketch2.addConstraint(Sketcher.Constraint("Equal", 7, 9))
sketch2.addConstraint(Sketcher.Constraint("Equal", 9, 11))
sketch2.addConstraint(Sketcher.Constraint("Equal", 11, 13))
sketch2.addConstraint(Sketcher.Constraint("Equal", 13, 15))
sketch2.addConstraint(Sketcher.Constraint("Equal", 15, 17))
sketch2.addConstraint(Sketcher.Constraint("Equal", 17, 19))
sketch2.addConstraint(Sketcher.Constraint("Equal", 19, 21))
sketch2.addConstraint(Sketcher.Constraint("Equal", 21, 23))
sketch2.addConstraint(Sketcher.Constraint("Equal", 23, 25))
sketch2.addConstraint(Sketcher.Constraint("Equal", 25, 27))
sketch2.addConstraint(Sketcher.Constraint("Equal", 27, 29))
sketch2.addConstraint(Sketcher.Constraint("Equal", 29, 31))
sketch2.addConstraint(Sketcher.Constraint("Equal", 31, 33))
sketch2.addConstraint(Sketcher.Constraint("Equal", 18, 34))
sketch2.addConstraint(Sketcher.Constraint("Equal", 33, 35))
sketch2.addConstraint(Sketcher.Constraint("Equal", 35, 37))
sketch2.addConstraint(Sketcher.Constraint("Equal", 22, 38))
sketch2.addConstraint(Sketcher.Constraint("Equal", 37, 39))
sketch2.addConstraint(Sketcher.Constraint("Equal", 39, 41))
sketch2.addConstraint(Sketcher.Constraint("Equal", 30, 42))
sketch2.addConstraint(Sketcher.Constraint("Equal", 41, 43))
sketch2.addConstraint(Sketcher.Constraint("Equal", 43, 45))
sketch2.addConstraint(Sketcher.Constraint("Equal", 26, 46))
sketch2.addConstraint(Sketcher.Constraint("Equal", 45, 47))
sketch2.addConstraint(Sketcher.Constraint("Equal", 47, 49))
sketch2.addConstraint(Sketcher.Constraint("Equal", 34, 50))
sketch2.addConstraint(Sketcher.Constraint("Equal", 49, 51))
sketch2.addConstraint(Sketcher.Constraint("Equal", 51, 53))
sketch2.addConstraint(Sketcher.Constraint("Equal", 38, 54))
sketch2.addConstraint(Sketcher.Constraint("Equal", 53, 55))
sketch2.addConstraint(Sketcher.Constraint("Equal", 55, 57))
sketch2.addConstraint(Sketcher.Constraint("Equal", 42, 58))
sketch2.addConstraint(Sketcher.Constraint("Equal", 57, 59))
sketch2.addConstraint(Sketcher.Constraint("Equal", 59, 61))
sketch2.addConstraint(Sketcher.Constraint("Equal", 46, 62))
sketch2.addConstraint(Sketcher.Constraint("Equal", 61, 63))
sketch2.addConstraint(Sketcher.Constraint("Equal", 63, 65))
sketch2.addConstraint(Sketcher.Constraint("Equal", 50, 66))
sketch2.addConstraint(Sketcher.Constraint("Equal", 65, 67))
sketch2.addConstraint(Sketcher.Constraint("Equal", 67, 69))
sketch2.addConstraint(Sketcher.Constraint("Equal", 54, 70))
sketch2.addConstraint(Sketcher.Constraint("Equal", 69, 71))
sketch2.addConstraint(Sketcher.Constraint("Equal", 71, 73))
sketch2.addConstraint(Sketcher.Constraint("Equal", 58, 74))
sketch2.addConstraint(Sketcher.Constraint("Equal", 73, 75))
sketch2.addConstraint(Sketcher.Constraint("Equal", 75, 77))
sketch2.addConstraint(Sketcher.Constraint("Equal", 62, 78))
sketch2.addConstraint(Sketcher.Constraint("Equal", 77, 79))
sketch2.addConstraint(Sketcher.Constraint("Symmetric", 19, 1, 51, 1, -1, 1))
sketch2.addConstraint(Sketcher.Constraint("Symmetric", 31, 1, 59, 1, -1, 1))
sketch2.addConstraint(Sketcher.Constraint("Symmetric", 32, 2, 64, 2, -1, 1))
sketch2.addConstraint(Sketcher.Constraint("Symmetric", 35, 1, 67, 1, -1, 1))
sketch2.addConstraint(Sketcher.Constraint("Symmetric", 40, 2, 72, 2, -1, 1))
sketch2.addConstraint(Sketcher.Constraint("Symmetric", 43, 1, 75, 1, -1, 1))
sketch2.addConstraint(Sketcher.Constraint("Symmetric", 19, 1, 32, 2, -2))
sketch2.addConstraint(Sketcher.Constraint("Symmetric", 31, 1, 40, 2, -2))
sketch2.addConstraint(Sketcher.Constraint("Symmetric", 48, 2, 67, 1, -2))
sketch2.addConstraint(Sketcher.Constraint("Symmetric", 56, 2, 75, 1, -2))
sketch2.addConstraint(Sketcher.Constraint("Parallel", 2, 14))
sketch2.addConstraint(Sketcher.Constraint("Parallel", 20, 24))
sketch2.addConstraint(Sketcher.Constraint("Parallel", 16, 28))
sketch2.addConstraint(Sketcher.Constraint("Perpendicular", 14, 32))
sketch2.addConstraint(Sketcher.Constraint("Perpendicular", 24, 36))
sketch2.addConstraint(Sketcher.Constraint("Parallel", 36, 44))
sketch2.addConstraint(Sketcher.Constraint("Horizontal", 7, 3, 9, 3))
sketch2.addConstraint(Sketcher.Constraint("Equal", 6, 10))
sketch2.addConstraint(Sketcher.Constraint("Equal", 16, 20))
sketch2.addConstraint(Sketcher.Constraint("Equal", 24, 28))
sketch2.addConstraint(Sketcher.Constraint("Radius", 1, Q("2 mm")))
sketch2.addConstraint(Sketcher.Constraint("Radius", 18, Q("34.4 mm")))
sketch2.addConstraint(Sketcher.Constraint("Radius", 22, Q("40.9 mm")))
sketch2.addConstraint(Sketcher.Constraint("Radius", 26, Q("29.4 mm")))
sketch2.addConstraint(Sketcher.Constraint("Radius", 30, Q("22.9 mm")))
sketch2.addConstraint(Sketcher.Constraint("DistanceX", 6, 2, 6, 1, Q("2.5 mm")))
sketch2.addConstraint(Sketcher.Constraint("Angle", 2, Q("7.5 deg")))
sketch2.addConstraint(Sketcher.Constraint("DistanceX", 1, 3, -1, 1, Q("38.9 mm")))
sketch2.addConstraint(Sketcher.Constraint("DistanceY", 5, 3, -1, 1, Q("40.9 mm")))
sketch2.addConstraint(Sketcher.Constraint("DistanceX", 9, 3, -1, 1, Q("24.9 mm")))
sketch2.addConstraint(Sketcher.Constraint("DistanceY", 0, 1, 0, 2, Q("33.76146 mm")))
sketch2.addConstraint(Sketcher.Constraint("DistanceX", 17, 1, -1, 1, Q("12.471501 mm")))
sketch2.addConstraint(Sketcher.Constraint("DistanceX", 21, 1, -1, 1, Q("7.416298 mm")))
sketch2.addConstraint(Sketcher.Constraint("DistanceX", 31, 1, -1, 1, Q("3.239601 mm")))
sketch2.addConstraint(Sketcher.Constraint("DistanceY", 37, 1, -1, 1, Q("7.416298 mm")))
sketch2.addConstraint(Sketcher.Constraint("DistanceY", 43, 1, -1, 1, Q("3.239601 mm")))
sketch2.addConstraint(Sketcher.Constraint("DistanceY", 8, 2, 8, 1, Q("35.604595 mm")))
pocket1 = doc.addObject("PartDesign::Pocket", "Pocket")
body.addObject(pocket1)
pocket1.Profile = sketch2
pocket1.Type = "ThroughAll"

# Sketch on XZ plane
sketch3 = doc.addObject("Sketcher::SketchObject", "Sketch002")
body.addObject(sketch3)
sketch3.AttachmentSupport = (doc.XZ_Plane, [""])
sketch3.MapMode = "FlatFace"
sketch3.AttachmentOffset = App.Placement(App.Vector(0, 0, -3), App.Rotation())
sketch3.addGeometry(Part.LineSegment(App.Vector(0, 0, 0), App.Vector(6, 22, 0)), False)
sketch3.addGeometry(Part.ArcOfCircle(Part.Circle(App.Vector(0, 0, 0), App.Vector(0, 0, 1), 23), math.radians(15), math.radians(75)), False)
sketch3.addGeometry(Part.LineSegment(App.Vector(22, 6, 0), App.Vector(0, 0, 0)), False)
sketch3.addConstraint(Sketcher.Constraint("Coincident", 0, 2, 1, 2))
sketch3.addConstraint(Sketcher.Constraint("Coincident", 1, 1, 2, 1))
sketch3.addConstraint(Sketcher.Constraint("Coincident", 2, 2, 0, 1))
sketch3.addConstraint(Sketcher.Constraint("Coincident", 1, 3, -1, 1))
sketch3.addConstraint(Sketcher.Constraint("Coincident", 2, 2, -1, 1))
sketch3.addConstraint(Sketcher.Constraint("Radius", 1, Q("22.9 mm")))
sketch3.addConstraint(Sketcher.Constraint("Angle", 0, Q("75 deg")))
sketch3.addConstraint(Sketcher.Constraint("Angle", 2, Q("-165 deg")))
pocket2 = doc.addObject("PartDesign::Pocket", "Pocket001")
body.addObject(pocket2)
pocket2.Profile = sketch3
pocket2.Type = "ThroughAll"
pocket2.Reversed = True
doc.recompute()

fillet = doc.addObject("PartDesign::Fillet", "Fillet")
body.addObject(fillet)
fillet.Base = (pocket2, edges_at(pocket2, [
    (5.927, 1.5, 22.12),
    (4.406, 1.5, 16.445),
    (16.445, 1.5, 4.406),
    (22.12, 1.5, 5.927),
]))
fillet.Radius = 2

# Sketch on XZ plane
sketch4 = doc.addObject("Sketcher::SketchObject", "Sketch003")
body.addObject(sketch4)
sketch4.AttachmentSupport = (doc.XZ_Plane, [""])
sketch4.MapMode = "FlatFace"
add_polygon(sketch4, [(-41, -52), (-41, -47), (-35, -47), (-35, -52)])  # lines 0-3
add_polygon(sketch4, [(-20, -44), (-5, -44), (-5, -58), (-20, -58)])  # lines 4-7
sketch4.addConstraint(Sketcher.Constraint("Vertical", 0))
sketch4.addConstraint(Sketcher.Constraint("Horizontal", 1))
sketch4.addConstraint(Sketcher.Constraint("Vertical", 2))
sketch4.addConstraint(Sketcher.Constraint("Horizontal", 3))
sketch4.addConstraint(Sketcher.Constraint("Horizontal", 4))
sketch4.addConstraint(Sketcher.Constraint("Vertical", 5))
sketch4.addConstraint(Sketcher.Constraint("Horizontal", 6))
sketch4.addConstraint(Sketcher.Constraint("Vertical", 7))
sketch4.addConstraint(Sketcher.Constraint("DistanceX", 4, 1, 4, 2, Q("15 mm")))
sketch4.addConstraint(Sketcher.Constraint("DistanceY", 0, 1, 0, 2, Q("5 mm")))
sketch4.addConstraint(Sketcher.Constraint("DistanceX", 1, 1, 1, 2, Q("5.9 mm")))
sketch4.addConstraint(Sketcher.Constraint("DistanceY", 5, 2, 5, 1, Q("14.1 mm")))
sketch4.addConstraint(Sketcher.Constraint("DistanceY", 5, 2, -1, 1, Q("58 mm")))
sketch4.addConstraint(Sketcher.Constraint("DistanceY", 1, 2, 4, 2, Q("3 mm")))
sketch4.addConstraint(Sketcher.Constraint("DistanceX", 4, 2, -1, 1, Q("4.9 mm")))
sketch4.addConstraint(Sketcher.Constraint("DistanceX", 0, 2, -1, 1, Q("40.85 mm")))
pad2 = doc.addObject("PartDesign::Pad", "Pad001")
body.addObject(pad2)
pad2.Profile = sketch4
pad2.Length = 3
pad2.Reversed = True
doc.recompute()

fillet2 = doc.addObject("PartDesign::Fillet", "Fillet001")
body.addObject(fillet2)
fillet2.Base = (pad2, edges_at(pad2, [(-4.9, 1.5, -46.643)]))
fillet2.Radius = 10

# Sketch on XZ plane
sketch5 = doc.addObject("Sketcher::SketchObject", "Sketch004")
body.addObject(sketch5)
sketch5.AttachmentSupport = (doc.XZ_Plane, [""])
sketch5.MapMode = "FlatFace"
sketch5.addGeometry(Part.Circle(App.Vector(-19.9, -46.9, 0), App.Vector(0, 0, 1), 1), False)
sketch5.addGeometry(Part.Circle(App.Vector(-40.9, -46.9, 0), App.Vector(0, 0, 1), 1), False)
sketch5.addGeometry(Part.Circle(App.Vector(-35, -46.9, 0), App.Vector(0, 0, 1), 1), False)
sketch5.addConstraint(Sketcher.Constraint("Equal", 0, 1))
sketch5.addConstraint(Sketcher.Constraint("Equal", 1, 2))
sketch5.addConstraint(Sketcher.Constraint("Horizontal", 0, 3, 1, 3))
sketch5.addConstraint(Sketcher.Constraint("Horizontal", 1, 3, 2, 3))
sketch5.addConstraint(Sketcher.Constraint("Diameter", 0, Q("2 mm")))
sketch5.addConstraint(Sketcher.Constraint("DistanceX", 0, 3, -1, 1, Q("19.9 mm")))
sketch5.addConstraint(Sketcher.Constraint("DistanceY", 0, 3, -1, 1, Q("46.9 mm")))
sketch5.addConstraint(Sketcher.Constraint("DistanceX", 1, 3, 2, 3, Q("5.9 mm")))
sketch5.addConstraint(Sketcher.Constraint("DistanceX", 1, 3, -1, 1, Q("40.85 mm")))
pocket3 = doc.addObject("PartDesign::Pocket", "Pocket002")
body.addObject(pocket3)
pocket3.Profile = sketch5
pocket3.Type = "ThroughAll"

doc.recompute()
